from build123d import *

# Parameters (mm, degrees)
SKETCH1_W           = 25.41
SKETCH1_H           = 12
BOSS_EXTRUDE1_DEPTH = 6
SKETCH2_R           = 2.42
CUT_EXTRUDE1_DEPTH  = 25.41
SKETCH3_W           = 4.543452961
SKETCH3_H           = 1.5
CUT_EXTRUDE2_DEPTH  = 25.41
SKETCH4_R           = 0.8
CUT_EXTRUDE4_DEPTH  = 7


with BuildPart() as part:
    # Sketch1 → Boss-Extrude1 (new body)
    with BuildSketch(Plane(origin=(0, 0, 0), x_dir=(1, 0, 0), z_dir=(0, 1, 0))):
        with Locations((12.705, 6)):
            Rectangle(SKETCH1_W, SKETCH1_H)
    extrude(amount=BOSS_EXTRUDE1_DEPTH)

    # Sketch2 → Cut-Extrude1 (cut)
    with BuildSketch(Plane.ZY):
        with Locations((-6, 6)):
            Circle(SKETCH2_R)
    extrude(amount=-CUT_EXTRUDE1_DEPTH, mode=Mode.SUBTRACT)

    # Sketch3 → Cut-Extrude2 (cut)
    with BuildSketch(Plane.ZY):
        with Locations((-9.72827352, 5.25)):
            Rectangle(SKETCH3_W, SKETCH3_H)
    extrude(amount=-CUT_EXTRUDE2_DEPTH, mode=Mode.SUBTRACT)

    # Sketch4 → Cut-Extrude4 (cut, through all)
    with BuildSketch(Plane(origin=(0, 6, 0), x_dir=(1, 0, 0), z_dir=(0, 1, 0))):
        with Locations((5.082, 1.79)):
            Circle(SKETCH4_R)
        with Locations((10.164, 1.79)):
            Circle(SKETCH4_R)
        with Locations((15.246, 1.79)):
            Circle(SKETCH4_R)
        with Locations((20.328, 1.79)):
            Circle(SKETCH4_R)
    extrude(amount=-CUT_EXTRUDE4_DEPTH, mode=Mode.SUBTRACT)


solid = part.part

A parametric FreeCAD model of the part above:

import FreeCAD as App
import Part
import Sketcher

V = App.Vector

doc = App.newDocument("Part")
body = doc.addObject("PartDesign::Body", "Body")

# Sketch on XZ plane
sketch1 = doc.addObject("Sketcher::SketchObject", "Sketch")
body.addObject(sketch1)
sketch1.AttachmentSupport = (doc.XZ_Plane, [""])
sketch1.MapMode = "FlatFace"
sketch1.addGeometry([
    Part.LineSegment(V(0, -12, 0), V(0, 0, 0)),
    Part.LineSegment(V(0, 0, 0), V(25, 0, 0)),
    Part.LineSegment(V(25, 0, 0), V(25, -12, 0)),
    Part.LineSegment(V(25, -12, 0), V(0, -12, 0)),
], False)
sketch1.addConstraint([
    Sketcher.Constraint("Coincident", 0, 2, 1, 1),
    Sketcher.Constraint("Coincident", 1, 2, 2, 1),
    Sketcher.Constraint("Coincident", 2, 2, 3, 1),
    Sketcher.Constraint("Coincident", 3, 2, 0, 1),
    Sketcher.Constraint("Vertical", 0),
    Sketcher.Constraint("Horizontal", 1),
    Sketcher.Constraint("Vertical", 2),
    Sketcher.Constraint("Horizontal", 3),
    Sketcher.Constraint("Coincident", 0, 2, -1, 1),
    Sketcher.Constraint("DistanceY", 0, 1, 0, 2, 12.0),
    Sketcher.Constraint("DistanceX", 1, 1, 1, 2, 25.41),
])
pad1 = doc.addObject("PartDesign::Pad", "Pad")
body.addObject(pad1)
pad1.Profile = sketch1
pad1.Length = 6
pad1.Reversed = True

# Sketch on YZ plane
sketch2 = doc.addObject("Sketcher::SketchObject", "Sketch001")
body.addObject(sketch2)
sketch2.AttachmentSupport = (doc.YZ_Plane, [""])
sketch2.MapMode = "FlatFace"
sketch2.addGeometry(Part.Circle(V(6, -6, 0), V(0, 0, 1), 2.4), False)
sketch2.addConstraint([
    Sketcher.Constraint("Diameter", 0, 4.84),
    Sketcher.Constraint("DistanceX", -1, 1, 0, 3, 6.0),
    Sketcher.Constraint("DistanceY", 0, 3, -1, 1, 6.0),
])
pocket1 = doc.addObject("PartDesign::Pocket", "Pocket")
body.addObject(pocket1)
pocket1.Profile = sketch2
pocket1.Length = 25.41
pocket1.Reversed = True

# Sketch on YZ plane
sketch3 = doc.addObject("Sketcher::SketchObject", "Sketch002")
body.addObject(sketch3)
sketch3.AttachmentSupport = (doc.YZ_Plane, [""])
sketch3.MapMode = "FlatFace"
sketch3.addGeometry([
    Part.LineSegment(V(6, -12, 0), V(4.5, -12, 0)),
    Part.LineSegment(V(4.5, -12, 0), V(4.5, -7.5, 0)),
    Part.LineSegment(V(4.5, -7.5, 0), V(6, -7.5, 0)),
    Part.LineSegment(V(6, -7.5, 0), V(6, -12, 0)),
], False)
sketch3.addConstraint([
    Sketcher.Constraint("Coincident", 0, 2, 1, 1),
    Sketcher.Constraint("Coincident", 1, 2, 2, 1),
    Sketcher.Constraint("Coincident", 2, 2, 3, 1),
    Sketcher.Constraint("Coincident", 3, 2, 0, 1),
    Sketcher.Constraint("Horizontal", 0),
    Sketcher.Constraint("Vertical", 1),
    Sketcher.Constraint("Horizontal", 2),
    Sketcher.Constraint("Vertical", 3),
    Sketcher.Constraint("DistanceX", 0, 2, 0, 1, 1.5),
    Sketcher.Constraint("DistanceY", 0, 2, -1, 1, 12.0),
    Sketcher.Constraint("DistanceX", -1, 1, 2, 2, 6.0),
    Sketcher.Constraint("DistanceY", 1, 1, 1, 2, 4.543453),
])
pocket2 = doc.addObject("PartDesign::Pocket", "Pocket001")
body.addObject(pocket2)
pocket2.Profile = sketch3
pocket2.Length = 25.41
pocket2.Reversed = True

# Sketch on XZ plane
sketch4 = doc.addObject("Sketcher::SketchObject", "Sketch003")
body.addObject(sketch4)
sketch4.AttachmentSupport = (doc.XZ_Plane, [""])
sketch4.MapMode = "FlatFace"
sketch4.AttachmentOffset = App.Placement(V(0, 0, -6), App.Rotation())
sketch4.addGeometry([
    Part.Circle(V(5.1, -1.8, 0), V(0, 0, 1), 0.8),
    Part.Circle(V(10.2, -1.8, 0), V(0, 0, 1), 0.8),
    Part.Circle(V(15.2, -1.8, 0), V(0, 0, 1), 0.8),
    Part.Circle(V(20.3, -1.8, 0), V(0, 0, 1), 0.8),
], False)
sketch4.addConstraint([
    Sketcher.Constraint("Equal", 0, 1),
    Sketcher.Constraint("Equal", 1, 2),
    Sketcher.Constraint("Equal", 2, 3),
    Sketcher.Constraint("Horizontal", 0, 3, 1, 3),
    Sketcher.Constraint("Horizontal", 1, 3, 2, 3),
    Sketcher.Constraint("Horizontal", 2, 3, 3, 3),
    Sketcher.Constraint("Diameter", 0, 1.6),
    Sketcher.Constraint("DistanceY", 0, 3, -1, 1, 1.79),
    Sketcher.Constraint("DistanceX", -1, 1, 0, 3, 5.082),
    Sketcher.Constraint("DistanceX", -1, 1, 1, 3, 10.164),
    Sketcher.Constraint("DistanceX", -1, 1, 2, 3, 15.246),
    Sketcher.Constraint("DistanceX", -1, 1, 3, 3, 20.328),
])
pocket3 = doc.addObject("PartDesign::Pocket", "Pocket002")
body.addObject(pocket3)
pocket3.Profile = sketch4
pocket3.Type = "ThroughAll"
pocket3.Reversed = True

doc.recompute()
